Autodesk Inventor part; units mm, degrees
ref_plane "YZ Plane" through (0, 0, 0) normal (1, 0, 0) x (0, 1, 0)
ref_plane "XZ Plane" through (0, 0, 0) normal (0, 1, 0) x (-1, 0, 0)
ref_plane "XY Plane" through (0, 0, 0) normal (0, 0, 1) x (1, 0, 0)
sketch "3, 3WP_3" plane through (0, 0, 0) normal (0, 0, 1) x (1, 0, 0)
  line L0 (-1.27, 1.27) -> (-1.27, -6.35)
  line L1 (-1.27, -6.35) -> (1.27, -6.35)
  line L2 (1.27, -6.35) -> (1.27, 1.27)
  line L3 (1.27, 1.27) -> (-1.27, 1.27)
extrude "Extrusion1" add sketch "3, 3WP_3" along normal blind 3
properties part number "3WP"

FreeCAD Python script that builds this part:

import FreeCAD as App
import Part
import Sketcher

V = App.Vector
Q = App.Units.Quantity

doc = App.newDocument("Part")
body = doc.addObject("PartDesign::Body", "Body")

sketch1 = body.newObject("Sketcher::SketchObject", "Sketch")
sketch1.AttachmentSupport = (doc.getObject("XY_Plane"), [""])
sketch1.MapMode = "FlatFace"
sketch1.addGeometry([
    Part.LineSegment(V(1.3, 1.3, 0), V(-1.3, 1.3, 0)),
    Part.LineSegment(V(-1.3, 1.3, 0), V(-1.3, -6.3, 0)),
    Part.LineSegment(V(-1.3, -6.3, 0), V(1.3, -6.3, 0)),
    Part.LineSegment(V(1.3, -6.3, 0), V(1.3, 1.3, 0)),
], False)
sketch1.addConstraint([
    Sketcher.Constraint("Coincident", 0, 2, 1, 1),
    Sketcher.Constraint("Coincident", 1, 2, 2, 1),
    Sketcher.Constraint("Coincident", 2, 2, 3, 1),
    Sketcher.Constraint("Coincident", 3, 2, 0, 1),
    Sketcher.Constraint("Horizontal", 0),
    Sketcher.Constraint("Vertical", 1),
    Sketcher.Constraint("Horizontal", 2),
    Sketcher.Constraint("Vertical", 3),
    Sketcher.Constraint("DistanceX", 0, 2, 0, 1, Q("0.1 in")),
    Sketcher.Constraint("DistanceY", 1, 2, 1, 1, Q("0.3 in")),
    Sketcher.Constraint("DistanceX", 0, 2, -1, 1, Q("0.05 in")),
    Sketcher.Constraint("DistanceY", -1, 1, 0, 2, Q("0.05 in")),
])
pad1 = body.newObject("PartDesign::Pad", "Pad")
pad1.Profile = sketch1
pad1.Length = Q("0.1181102 in")

doc.recompute()
